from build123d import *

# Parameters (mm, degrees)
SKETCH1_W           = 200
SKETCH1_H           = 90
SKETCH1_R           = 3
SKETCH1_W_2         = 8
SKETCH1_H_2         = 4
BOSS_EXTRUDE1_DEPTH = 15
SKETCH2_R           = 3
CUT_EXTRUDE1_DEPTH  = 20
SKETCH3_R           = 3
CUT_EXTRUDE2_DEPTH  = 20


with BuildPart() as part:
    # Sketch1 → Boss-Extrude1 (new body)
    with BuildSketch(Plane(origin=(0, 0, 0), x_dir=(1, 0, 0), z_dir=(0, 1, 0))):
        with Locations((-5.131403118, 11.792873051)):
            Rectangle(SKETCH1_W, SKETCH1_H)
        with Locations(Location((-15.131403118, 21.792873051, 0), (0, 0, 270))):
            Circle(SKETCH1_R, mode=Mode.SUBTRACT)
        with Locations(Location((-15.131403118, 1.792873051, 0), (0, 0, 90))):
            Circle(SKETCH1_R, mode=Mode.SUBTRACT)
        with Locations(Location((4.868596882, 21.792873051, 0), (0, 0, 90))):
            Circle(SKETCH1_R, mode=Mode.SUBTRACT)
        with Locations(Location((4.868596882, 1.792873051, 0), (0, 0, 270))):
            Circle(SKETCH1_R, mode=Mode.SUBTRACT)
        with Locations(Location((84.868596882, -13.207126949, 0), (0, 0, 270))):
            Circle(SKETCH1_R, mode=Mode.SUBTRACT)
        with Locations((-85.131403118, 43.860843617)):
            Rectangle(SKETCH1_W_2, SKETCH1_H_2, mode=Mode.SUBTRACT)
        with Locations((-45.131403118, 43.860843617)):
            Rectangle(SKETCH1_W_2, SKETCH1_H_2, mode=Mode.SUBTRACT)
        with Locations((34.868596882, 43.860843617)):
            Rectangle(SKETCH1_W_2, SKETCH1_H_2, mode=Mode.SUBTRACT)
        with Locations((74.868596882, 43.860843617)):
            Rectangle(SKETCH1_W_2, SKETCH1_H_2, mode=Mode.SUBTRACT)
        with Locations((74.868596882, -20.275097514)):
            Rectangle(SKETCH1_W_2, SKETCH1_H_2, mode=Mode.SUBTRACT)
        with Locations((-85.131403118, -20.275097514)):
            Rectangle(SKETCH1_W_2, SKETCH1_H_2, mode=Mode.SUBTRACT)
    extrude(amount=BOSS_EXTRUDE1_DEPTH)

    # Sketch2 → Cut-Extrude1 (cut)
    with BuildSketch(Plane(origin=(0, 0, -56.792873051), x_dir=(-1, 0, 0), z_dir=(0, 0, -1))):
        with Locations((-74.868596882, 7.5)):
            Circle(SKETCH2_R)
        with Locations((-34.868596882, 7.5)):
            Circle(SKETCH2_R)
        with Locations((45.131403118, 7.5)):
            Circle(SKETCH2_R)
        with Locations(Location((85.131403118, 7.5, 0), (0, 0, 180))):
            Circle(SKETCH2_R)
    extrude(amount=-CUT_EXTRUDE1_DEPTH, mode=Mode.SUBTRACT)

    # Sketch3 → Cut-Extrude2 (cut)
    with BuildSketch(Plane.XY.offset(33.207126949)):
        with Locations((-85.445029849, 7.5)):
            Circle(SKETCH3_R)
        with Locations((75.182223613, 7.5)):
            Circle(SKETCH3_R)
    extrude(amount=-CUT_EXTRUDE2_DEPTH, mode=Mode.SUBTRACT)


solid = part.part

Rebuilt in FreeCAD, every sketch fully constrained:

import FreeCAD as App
import Part
import Sketcher

doc = App.newDocument("Part")
body = doc.addObject("PartDesign::Body", "Body")

# Sketch on XZ plane
sketch1 = body.newObject("Sketcher::SketchObject", "Sketch")
sketch1.AttachmentSupport = (doc.getObject("XZ_Plane"), [""])
sketch1.MapMode = "FlatFace"
sketch1.addGeometry(Part.LineSegment(App.Vector(-105.1, -56.8, 0), App.Vector(-105.1, 33.2, 0)), False)
sketch1.addGeometry(Part.LineSegment(App.Vector(-105.1, 33.2, 0), App.Vector(94.9, 33.2, 0)), False)
sketch1.addGeometry(Part.LineSegment(App.Vector(94.9, 33.2, 0), App.Vector(94.9, -56.8, 0)), False)
sketch1.addGeometry(Part.LineSegment(App.Vector(94.9, -56.8, 0), App.Vector(-105.1, -56.8, 0)), False)
sketch1.addGeometry(Part.LineSegment(App.Vector(-81.1, 22.3, 0), App.Vector(-89.1, 22.3, 0)), False)
sketch1.addGeometry(Part.LineSegment(App.Vector(-89.1, 22.3, 0), App.Vector(-89.1, 18.3, 0)), False)
sketch1.addGeometry(Part.LineSegment(App.Vector(-89.1, 18.3, 0), App.Vector(-81.1, 18.3, 0)), False)
sketch1.addGeometry(Part.LineSegment(App.Vector(-81.1, 18.3, 0), App.Vector(-81.1, 22.3, 0)), False)
sketch1.addGeometry(Part.Circle(App.Vector(-15.1, -1.8, 0), App.Vector(0, 0, 1), 3), False)
sketch1.addGeometry(Part.LineSegment(App.Vector(78.9, 22.3, 0), App.Vector(70.9, 22.3, 0)), False)
sketch1.addGeometry(Part.LineSegment(App.Vector(70.9, 22.3, 0), App.Vector(70.9, 18.3, 0)), False)
sketch1.addGeometry(Part.LineSegment(App.Vector(70.9, 18.3, 0), App.Vector(78.9, 18.3, 0)), False)
sketch1.addGeometry(Part.LineSegment(App.Vector(78.9, 18.3, 0), App.Vector(78.9, 22.3, 0)), False)
sketch1.addGeometry(Part.Circle(App.Vector(84.9, 13.2, 0), App.Vector(0, 0, 1), 3), False)
sketch1.addGeometry(Part.Circle(App.Vector(4.9, -1.8, 0), App.Vector(0, 0, 1), 3), False)
sketch1.addGeometry(Part.Circle(App.Vector(-15.1, -21.8, 0), App.Vector(0, 0, 1), 3), False)
sketch1.addGeometry(Part.LineSegment(App.Vector(-81.1, -41.9, 0), App.Vector(-89.1, -41.9, 0)), False)
sketch1.addGeometry(Part.LineSegment(App.Vector(-89.1, -41.9, 0), App.Vector(-89.1, -45.9, 0)), False)
sketch1.addGeometry(Part.LineSegment(App.Vector(-89.1, -45.9, 0), App.Vector(-81.1, -45.9, 0)), False)
sketch1.addGeometry(Part.LineSegment(App.Vector(-81.1, -45.9, 0), App.Vector(-81.1, -41.9, 0)), False)
sketch1.addGeometry(Part.LineSegment(App.Vector(-41.1, -41.9, 0), App.Vector(-49.1, -41.9, 0)), False)
sketch1.addGeometry(Part.LineSegment(App.Vector(-49.1, -41.9, 0), App.Vector(-49.1, -45.9, 0)), False)
sketch1.addGeometry(Part.LineSegment(App.Vector(-49.1, -45.9, 0), App.Vector(-41.1, -45.9, 0)), False)
sketch1.addGeometry(Part.LineSegment(App.Vector(-41.1, -45.9, 0), App.Vector(-41.1, -41.9, 0)), False)
sketch1.addGeometry(Part.Circle(App.Vector(4.9, -21.8, 0), App.Vector(0, 0, 1), 3), False)
sketch1.addGeometry(Part.LineSegment(App.Vector(38.9, -41.9, 0), App.Vector(30.9, -41.9, 0)), False)
sketch1.addGeometry(Part.LineSegment(App.Vector(30.9, -41.9, 0), App.Vector(30.9, -45.9, 0)), False)
sketch1.addGeometry(Part.LineSegment(App.Vector(30.9, -45.9, 0), App.Vector(38.9, -45.9, 0)), False)
sketch1.addGeometry(Part.LineSegment(App.Vector(38.9, -45.9, 0), App.Vector(38.9, -41.9, 0)), False)
sketch1.addGeometry(Part.LineSegment(App.Vector(78.9, -41.9, 0), App.Vector(70.9, -41.9, 0)), False)
sketch1.addGeometry(Part.LineSegment(App.Vector(70.9, -41.9, 0), App.Vector(70.9, -45.9, 0)), False)
sketch1.addGeometry(Part.LineSegment(App.Vector(70.9, -45.9, 0), App.Vector(78.9, -45.9, 0)), False)
sketch1.addGeometry(Part.LineSegment(App.Vector(78.9, -45.9, 0), App.Vector(78.9, -41.9, 0)), False)
sketch1.addConstraint(Sketcher.Constraint("Coincident", 0, 2, 1, 1))
sketch1.addConstraint(Sketcher.Constraint("Coincident", 1, 2, 2, 1))
sketch1.addConstraint(Sketcher.Constraint("Coincident", 2, 2, 3, 1))
sketch1.addConstraint(Sketcher.Constraint("Coincident", 3, 2, 0, 1))
sketch1.addConstraint(Sketcher.Constraint("Coincident", 4, 2, 5, 1))
sketch1.addConstraint(Sketcher.Constraint("Coincident", 5, 2, 6, 1))
sketch1.addConstraint(Sketcher.Constraint("Coincident", 6, 2, 7, 1))
sketch1.addConstraint(Sketcher.Constraint("Coincident", 7, 2, 4, 1))
sketch1.addConstraint(Sketcher.Constraint("Coincident", 9, 2, 10, 1))
sketch1.addConstraint(Sketcher.Constraint("Coincident", 10, 2, 11, 1))
sketch1.addConstraint(Sketcher.Constraint("Coincident", 11, 2, 12, 1))
sketch1.addConstraint(Sketcher.Constraint("Coincident", 12, 2, 9, 1))
sketch1.addConstraint(Sketcher.Constraint("Coincident", 16, 2, 17, 1))
sketch1.addConstraint(Sketcher.Constraint("Coincident", 17, 2, 18, 1))
sketch1.addConstraint(Sketcher.Constraint("Coincident", 18, 2, 19, 1))
sketch1.addConstraint(Sketcher.Constraint("Coincident", 19, 2, 16, 1))
sketch1.addConstraint(Sketcher.Constraint("Coincident", 20, 2, 21, 1))
sketch1.addConstraint(Sketcher.Constraint("Coincident", 21, 2, 22, 1))
sketch1.addConstraint(Sketcher.Constraint("Coincident", 22, 2, 23, 1))
sketch1.addConstraint(Sketcher.Constraint("Coincident", 23, 2, 20, 1))
sketch1.addConstraint(Sketcher.Constraint("Coincident", 25, 2, 26, 1))
sketch1.addConstraint(Sketcher.Constraint("Coincident", 26, 2, 27, 1))
sketch1.addConstraint(Sketcher.Constraint("Coincident", 27, 2, 28, 1))
sketch1.addConstraint(Sketcher.Constraint("Coincident", 28, 2, 25, 1))
sketch1.addConstraint(Sketcher.Constraint("Coincident", 29, 2, 30, 1))
sketch1.addConstraint(Sketcher.Constraint("Coincident", 30, 2, 31, 1))
sketch1.addConstraint(Sketcher.Constraint("Coincident", 31, 2, 32, 1))
sketch1.addConstraint(Sketcher.Constraint("Coincident", 32, 2, 29, 1))
sketch1.addConstraint(Sketcher.Constraint("Vertical", 0))
sketch1.addConstraint(Sketcher.Constraint("Horizontal", 1))
sketch1.addConstraint(Sketcher.Constraint("Vertical", 2))
sketch1.addConstraint(Sketcher.Constraint("Horizontal", 3))
sketch1.addConstraint(Sketcher.Constraint("Horizontal", 4))
sketch1.addConstraint(Sketcher.Constraint("Vertical", 5))
sketch1.addConstraint(Sketcher.Constraint("Horizontal", 6))
sketch1.addConstraint(Sketcher.Constraint("Vertical", 7))
sketch1.addConstraint(Sketcher.Constraint("Horizontal", 9))
sketch1.addConstraint(Sketcher.Constraint("Vertical", 10))
sketch1.addConstraint(Sketcher.Constraint("Horizontal", 11))
sketch1.addConstraint(Sketcher.Constraint("Vertical", 12))
sketch1.addConstraint(Sketcher.Constraint("Horizontal", 16))
sketch1.addConstraint(Sketcher.Constraint("Vertical", 17))
sketch1.addConstraint(Sketcher.Constraint("Horizontal", 18))
sketch1.addConstraint(Sketcher.Constraint("Vertical", 19))
sketch1.addConstraint(Sketcher.Constraint("Horizontal", 20))
sketch1.addConstraint(Sketcher.Constraint("Vertical", 21))
sketch1.addConstraint(Sketcher.Constraint("Horizontal", 22))
sketch1.addConstraint(Sketcher.Constraint("Vertical", 23))
sketch1.addConstraint(Sketcher.Constraint("Horizontal", 25))
sketch1.addConstraint(Sketcher.Constraint("Vertical", 26))
sketch1.addConstraint(Sketcher.Constraint("Horizontal", 27))
sketch1.addConstraint(Sketcher.Constraint("Vertical", 28))
sketch1.addConstraint(Sketcher.Constraint("Horizontal", 29))
sketch1.addConstraint(Sketcher.Constraint("Vertical", 30))
sketch1.addConstraint(Sketcher.Constraint("Horizontal", 31))
sketch1.addConstraint(Sketcher.Constraint("Vertical", 32))
sketch1.addConstraint(Sketcher.Constraint("Equal", 8, 13))
sketch1.addConstraint(Sketcher.Constraint("Equal", 13, 14))
sketch1.addConstraint(Sketcher.Constraint("Equal", 14, 15))
sketch1.addConstraint(Sketcher.Constraint("Equal", 15, 24))
sketch1.addConstraint(Sketcher.Constraint("Horizontal", 8, 3, 14, 3))
sketch1.addConstraint(Sketcher.Constraint("Horizontal", 15, 3, 24, 3))
sketch1.addConstraint(Sketcher.Constraint("Horizontal", 7, 2, 9, 2))
sketch1.addConstraint(Sketcher.Constraint("Horizontal", 6, 2, 10, 2))
sketch1.addConstraint(Sketcher.Constraint("Horizontal", 19, 2, 20, 2))
sketch1.addConstraint(Sketcher.Constraint("Horizontal", 18, 2, 21, 2))
sketch1.addConstraint(Sketcher.Constraint("Horizontal", 23, 2, 25, 2))
sketch1.addConstraint(Sketcher.Constraint("Horizontal", 22, 2, 26, 2))
sketch1.addConstraint(Sketcher.Constraint("Horizontal", 28, 2, 29, 2))
sketch1.addConstraint(Sketcher.Constraint("Horizontal", 27, 2, 30, 2))
sketch1.addConstraint(Sketcher.Constraint("Vertical", 8, 3, 15, 3))
sketch1.addConstraint(Sketcher.Constraint("Vertical", 14, 3, 24, 3))
sketch1.addConstraint(Sketcher.Constraint("Vertical", 5, 2, 16, 2))
sketch1.addConstraint(Sketcher.Constraint("Vertical", 7, 2, 18, 2))
sketch1.addConstraint(Sketcher.Constraint("Vertical", 10, 2, 29, 2))
sketch1.addConstraint(Sketcher.Constraint("Vertical", 12, 2, 31, 2))
sketch1.addConstraint(Sketcher.Constraint("Equal", 6, 9))
sketch1.addConstraint(Sketcher.Constraint("Equal", 18, 20))
sketch1.addConstraint(Sketcher.Constraint("Equal", 22, 25))
sketch1.addConstraint(Sketcher.Constraint("Equal", 12, 17))
sketch1.addConstraint(Sketcher.Constraint("Diameter", 8, 6.0))
sketch1.addConstraint(Sketcher.Constraint("DistanceX", 1, 1, 1, 2, 200.0))
sketch1.addConstraint(Sketcher.Constraint("DistanceX", 4, 2, 4, 1, 8.0))
sketch1.addConstraint(Sketcher.Constraint("DistanceY", 0, 1, 0, 2, 90.0))
sketch1.addConstraint(Sketcher.Constraint("DistanceY", 5, 2, 5, 1, 4.0))
sketch1.addConstraint(Sketcher.Constraint("DistanceX", 8, 3, 13, 3, 100.0))
sketch1.addConstraint(Sketcher.Constraint("DistanceY", 8, 3, 13, 3, 15.0))
sketch1.addConstraint(Sketcher.Constraint("DistanceX", 8, 3, 14, 3, 20.0))
sketch1.addConstraint(Sketcher.Constraint("DistanceY", 15, 3, 8, 3, 20.0))
sketch1.addConstraint(Sketcher.Constraint("DistanceX", 0, 2, 8, 3, 90.0))
sketch1.addConstraint(Sketcher.Constraint("DistanceY", 8, 3, 0, 2, 35.0))
sketch1.addConstraint(Sketcher.Constraint("DistanceX", 0, 2, 4, 2, 16.0))
sketch1.addConstraint(Sketcher.Constraint("DistanceX", 9, 2, 13, 3, 14.0))
sketch1.addConstraint(Sketcher.Constraint("DistanceX", 19, 2, 20, 2, 32.0))
sketch1.addConstraint(Sketcher.Constraint("DistanceX", 24, 3, 25, 2, 26.0))
sketch1.addConstraint(Sketcher.Constraint("DistanceY", 4, 2, 0, 2, 10.932029))
sketch1.addConstraint(Sketcher.Constraint("DistanceY", 3, 2, 16, 2, 14.932029))
sketch1.addConstraint(Sketcher.Constraint("DistanceX", 8, 3, -1, 1, 15.131403))
sketch1.addConstraint(Sketcher.Constraint("DistanceY", 8, 3, -1, 1, 1.792873))
pad1 = body.newObject("PartDesign::Pad", "Pad")
pad1.Profile = sketch1
pad1.Length = 15
pad1.Reversed = True

# Sketch on XY plane
sketch2 = body.newObject("Sketcher::SketchObject", "Sketch001")
sketch2.AttachmentSupport = (doc.getObject("XY_Plane"), [""])
sketch2.MapMode = "FlatFace"
sketch2.AttachmentOffset = App.Placement(App.Vector(0, 0, -56.792873), App.Rotation())
sketch2.addGeometry(Part.Circle(App.Vector(74.9, 7.5, 0), App.Vector(0, 0, 1), 3), False)
sketch2.addGeometry(Part.Circle(App.Vector(34.9, 7.5, 0), App.Vector(0, 0, 1), 3), False)
sketch2.addGeometry(Part.Circle(App.Vector(-45.1, 7.5, 0), App.Vector(0, 0, 1), 3), False)
sketch2.addGeometry(Part.Circle(App.Vector(-85.1, 7.5, 0), App.Vector(0, 0, 1), 3), False)
sketch2.addConstraint(Sketcher.Constraint("Equal", 0, 1))
sketch2.addConstraint(Sketcher.Constraint("Equal", 1, 2))
sketch2.addConstraint(Sketcher.Constraint("Equal", 2, 3))
sketch2.addConstraint(Sketcher.Constraint("Horizontal", 0, 3, 1, 3))
sketch2.addConstraint(Sketcher.Constraint("Horizontal", 1, 3, 2, 3))
sketch2.addConstraint(Sketcher.Constraint("Horizontal", 2, 3, 3, 3))
sketch2.addConstraint(Sketcher.Constraint("Diameter", 0, 6.0))
sketch2.addConstraint(Sketcher.Constraint("DistanceX", 1, 3, 0, 3, 40.0))
sketch2.addConstraint(Sketcher.Constraint("DistanceX", 2, 3, 1, 3, 80.0))
sketch2.addConstraint(Sketcher.Constraint("DistanceX", 3, 3, 2, 3, 40.0))
sketch2.addConstraint(Sketcher.Constraint("DistanceY", -1, 1, 0, 3, 7.5))
sketch2.addConstraint(Sketcher.Constraint("DistanceX", -1, 1, 0, 3, 74.868597))
pocket1 = body.newObject("PartDesign::Pocket", "Pocket")
pocket1.Profile = sketch2
pocket1.Length = 20
pocket1.Reversed = True

# Sketch on XY plane
sketch3 = body.newObject("Sketcher::SketchObject", "Sketch002")
sketch3.AttachmentSupport = (doc.getObject("XY_Plane"), [""])
sketch3.MapMode = "FlatFace"
sketch3.AttachmentOffset = App.Placement(App.Vector(0, 0, 33.207127), App.Rotation())
sketch3.addGeometry(Part.Circle(App.Vector(-85.4, 7.5, 0), App.Vector(0, 0, 1), 3), False)
sketch3.addGeometry(Part.Circle(App.Vector(75.2, 7.5, 0), App.Vector(0, 0, 1), 3), False)
sketch3.addConstraint(Sketcher.Constraint("Equal", 0, 1))
sketch3.addConstraint(Sketcher.Constraint("Horizontal", 0, 3, 1, 3))
sketch3.addConstraint(Sketcher.Constraint("Diameter", 0, 6.0))
sketch3.addConstraint(Sketcher.Constraint("DistanceY", -1, 1, 0, 3, 7.5))
sketch3.addConstraint(Sketcher.Constraint("DistanceX", 0, 3, -1, 1, 85.44503))
sketch3.addConstraint(Sketcher.Constraint("DistanceX", -1, 1, 1, 3, 75.182224))
pocket2 = body.newObject("PartDesign::Pocket", "Pocket001")
pocket2.Profile = sketch3
pocket2.Length = 20

doc.recompute()
